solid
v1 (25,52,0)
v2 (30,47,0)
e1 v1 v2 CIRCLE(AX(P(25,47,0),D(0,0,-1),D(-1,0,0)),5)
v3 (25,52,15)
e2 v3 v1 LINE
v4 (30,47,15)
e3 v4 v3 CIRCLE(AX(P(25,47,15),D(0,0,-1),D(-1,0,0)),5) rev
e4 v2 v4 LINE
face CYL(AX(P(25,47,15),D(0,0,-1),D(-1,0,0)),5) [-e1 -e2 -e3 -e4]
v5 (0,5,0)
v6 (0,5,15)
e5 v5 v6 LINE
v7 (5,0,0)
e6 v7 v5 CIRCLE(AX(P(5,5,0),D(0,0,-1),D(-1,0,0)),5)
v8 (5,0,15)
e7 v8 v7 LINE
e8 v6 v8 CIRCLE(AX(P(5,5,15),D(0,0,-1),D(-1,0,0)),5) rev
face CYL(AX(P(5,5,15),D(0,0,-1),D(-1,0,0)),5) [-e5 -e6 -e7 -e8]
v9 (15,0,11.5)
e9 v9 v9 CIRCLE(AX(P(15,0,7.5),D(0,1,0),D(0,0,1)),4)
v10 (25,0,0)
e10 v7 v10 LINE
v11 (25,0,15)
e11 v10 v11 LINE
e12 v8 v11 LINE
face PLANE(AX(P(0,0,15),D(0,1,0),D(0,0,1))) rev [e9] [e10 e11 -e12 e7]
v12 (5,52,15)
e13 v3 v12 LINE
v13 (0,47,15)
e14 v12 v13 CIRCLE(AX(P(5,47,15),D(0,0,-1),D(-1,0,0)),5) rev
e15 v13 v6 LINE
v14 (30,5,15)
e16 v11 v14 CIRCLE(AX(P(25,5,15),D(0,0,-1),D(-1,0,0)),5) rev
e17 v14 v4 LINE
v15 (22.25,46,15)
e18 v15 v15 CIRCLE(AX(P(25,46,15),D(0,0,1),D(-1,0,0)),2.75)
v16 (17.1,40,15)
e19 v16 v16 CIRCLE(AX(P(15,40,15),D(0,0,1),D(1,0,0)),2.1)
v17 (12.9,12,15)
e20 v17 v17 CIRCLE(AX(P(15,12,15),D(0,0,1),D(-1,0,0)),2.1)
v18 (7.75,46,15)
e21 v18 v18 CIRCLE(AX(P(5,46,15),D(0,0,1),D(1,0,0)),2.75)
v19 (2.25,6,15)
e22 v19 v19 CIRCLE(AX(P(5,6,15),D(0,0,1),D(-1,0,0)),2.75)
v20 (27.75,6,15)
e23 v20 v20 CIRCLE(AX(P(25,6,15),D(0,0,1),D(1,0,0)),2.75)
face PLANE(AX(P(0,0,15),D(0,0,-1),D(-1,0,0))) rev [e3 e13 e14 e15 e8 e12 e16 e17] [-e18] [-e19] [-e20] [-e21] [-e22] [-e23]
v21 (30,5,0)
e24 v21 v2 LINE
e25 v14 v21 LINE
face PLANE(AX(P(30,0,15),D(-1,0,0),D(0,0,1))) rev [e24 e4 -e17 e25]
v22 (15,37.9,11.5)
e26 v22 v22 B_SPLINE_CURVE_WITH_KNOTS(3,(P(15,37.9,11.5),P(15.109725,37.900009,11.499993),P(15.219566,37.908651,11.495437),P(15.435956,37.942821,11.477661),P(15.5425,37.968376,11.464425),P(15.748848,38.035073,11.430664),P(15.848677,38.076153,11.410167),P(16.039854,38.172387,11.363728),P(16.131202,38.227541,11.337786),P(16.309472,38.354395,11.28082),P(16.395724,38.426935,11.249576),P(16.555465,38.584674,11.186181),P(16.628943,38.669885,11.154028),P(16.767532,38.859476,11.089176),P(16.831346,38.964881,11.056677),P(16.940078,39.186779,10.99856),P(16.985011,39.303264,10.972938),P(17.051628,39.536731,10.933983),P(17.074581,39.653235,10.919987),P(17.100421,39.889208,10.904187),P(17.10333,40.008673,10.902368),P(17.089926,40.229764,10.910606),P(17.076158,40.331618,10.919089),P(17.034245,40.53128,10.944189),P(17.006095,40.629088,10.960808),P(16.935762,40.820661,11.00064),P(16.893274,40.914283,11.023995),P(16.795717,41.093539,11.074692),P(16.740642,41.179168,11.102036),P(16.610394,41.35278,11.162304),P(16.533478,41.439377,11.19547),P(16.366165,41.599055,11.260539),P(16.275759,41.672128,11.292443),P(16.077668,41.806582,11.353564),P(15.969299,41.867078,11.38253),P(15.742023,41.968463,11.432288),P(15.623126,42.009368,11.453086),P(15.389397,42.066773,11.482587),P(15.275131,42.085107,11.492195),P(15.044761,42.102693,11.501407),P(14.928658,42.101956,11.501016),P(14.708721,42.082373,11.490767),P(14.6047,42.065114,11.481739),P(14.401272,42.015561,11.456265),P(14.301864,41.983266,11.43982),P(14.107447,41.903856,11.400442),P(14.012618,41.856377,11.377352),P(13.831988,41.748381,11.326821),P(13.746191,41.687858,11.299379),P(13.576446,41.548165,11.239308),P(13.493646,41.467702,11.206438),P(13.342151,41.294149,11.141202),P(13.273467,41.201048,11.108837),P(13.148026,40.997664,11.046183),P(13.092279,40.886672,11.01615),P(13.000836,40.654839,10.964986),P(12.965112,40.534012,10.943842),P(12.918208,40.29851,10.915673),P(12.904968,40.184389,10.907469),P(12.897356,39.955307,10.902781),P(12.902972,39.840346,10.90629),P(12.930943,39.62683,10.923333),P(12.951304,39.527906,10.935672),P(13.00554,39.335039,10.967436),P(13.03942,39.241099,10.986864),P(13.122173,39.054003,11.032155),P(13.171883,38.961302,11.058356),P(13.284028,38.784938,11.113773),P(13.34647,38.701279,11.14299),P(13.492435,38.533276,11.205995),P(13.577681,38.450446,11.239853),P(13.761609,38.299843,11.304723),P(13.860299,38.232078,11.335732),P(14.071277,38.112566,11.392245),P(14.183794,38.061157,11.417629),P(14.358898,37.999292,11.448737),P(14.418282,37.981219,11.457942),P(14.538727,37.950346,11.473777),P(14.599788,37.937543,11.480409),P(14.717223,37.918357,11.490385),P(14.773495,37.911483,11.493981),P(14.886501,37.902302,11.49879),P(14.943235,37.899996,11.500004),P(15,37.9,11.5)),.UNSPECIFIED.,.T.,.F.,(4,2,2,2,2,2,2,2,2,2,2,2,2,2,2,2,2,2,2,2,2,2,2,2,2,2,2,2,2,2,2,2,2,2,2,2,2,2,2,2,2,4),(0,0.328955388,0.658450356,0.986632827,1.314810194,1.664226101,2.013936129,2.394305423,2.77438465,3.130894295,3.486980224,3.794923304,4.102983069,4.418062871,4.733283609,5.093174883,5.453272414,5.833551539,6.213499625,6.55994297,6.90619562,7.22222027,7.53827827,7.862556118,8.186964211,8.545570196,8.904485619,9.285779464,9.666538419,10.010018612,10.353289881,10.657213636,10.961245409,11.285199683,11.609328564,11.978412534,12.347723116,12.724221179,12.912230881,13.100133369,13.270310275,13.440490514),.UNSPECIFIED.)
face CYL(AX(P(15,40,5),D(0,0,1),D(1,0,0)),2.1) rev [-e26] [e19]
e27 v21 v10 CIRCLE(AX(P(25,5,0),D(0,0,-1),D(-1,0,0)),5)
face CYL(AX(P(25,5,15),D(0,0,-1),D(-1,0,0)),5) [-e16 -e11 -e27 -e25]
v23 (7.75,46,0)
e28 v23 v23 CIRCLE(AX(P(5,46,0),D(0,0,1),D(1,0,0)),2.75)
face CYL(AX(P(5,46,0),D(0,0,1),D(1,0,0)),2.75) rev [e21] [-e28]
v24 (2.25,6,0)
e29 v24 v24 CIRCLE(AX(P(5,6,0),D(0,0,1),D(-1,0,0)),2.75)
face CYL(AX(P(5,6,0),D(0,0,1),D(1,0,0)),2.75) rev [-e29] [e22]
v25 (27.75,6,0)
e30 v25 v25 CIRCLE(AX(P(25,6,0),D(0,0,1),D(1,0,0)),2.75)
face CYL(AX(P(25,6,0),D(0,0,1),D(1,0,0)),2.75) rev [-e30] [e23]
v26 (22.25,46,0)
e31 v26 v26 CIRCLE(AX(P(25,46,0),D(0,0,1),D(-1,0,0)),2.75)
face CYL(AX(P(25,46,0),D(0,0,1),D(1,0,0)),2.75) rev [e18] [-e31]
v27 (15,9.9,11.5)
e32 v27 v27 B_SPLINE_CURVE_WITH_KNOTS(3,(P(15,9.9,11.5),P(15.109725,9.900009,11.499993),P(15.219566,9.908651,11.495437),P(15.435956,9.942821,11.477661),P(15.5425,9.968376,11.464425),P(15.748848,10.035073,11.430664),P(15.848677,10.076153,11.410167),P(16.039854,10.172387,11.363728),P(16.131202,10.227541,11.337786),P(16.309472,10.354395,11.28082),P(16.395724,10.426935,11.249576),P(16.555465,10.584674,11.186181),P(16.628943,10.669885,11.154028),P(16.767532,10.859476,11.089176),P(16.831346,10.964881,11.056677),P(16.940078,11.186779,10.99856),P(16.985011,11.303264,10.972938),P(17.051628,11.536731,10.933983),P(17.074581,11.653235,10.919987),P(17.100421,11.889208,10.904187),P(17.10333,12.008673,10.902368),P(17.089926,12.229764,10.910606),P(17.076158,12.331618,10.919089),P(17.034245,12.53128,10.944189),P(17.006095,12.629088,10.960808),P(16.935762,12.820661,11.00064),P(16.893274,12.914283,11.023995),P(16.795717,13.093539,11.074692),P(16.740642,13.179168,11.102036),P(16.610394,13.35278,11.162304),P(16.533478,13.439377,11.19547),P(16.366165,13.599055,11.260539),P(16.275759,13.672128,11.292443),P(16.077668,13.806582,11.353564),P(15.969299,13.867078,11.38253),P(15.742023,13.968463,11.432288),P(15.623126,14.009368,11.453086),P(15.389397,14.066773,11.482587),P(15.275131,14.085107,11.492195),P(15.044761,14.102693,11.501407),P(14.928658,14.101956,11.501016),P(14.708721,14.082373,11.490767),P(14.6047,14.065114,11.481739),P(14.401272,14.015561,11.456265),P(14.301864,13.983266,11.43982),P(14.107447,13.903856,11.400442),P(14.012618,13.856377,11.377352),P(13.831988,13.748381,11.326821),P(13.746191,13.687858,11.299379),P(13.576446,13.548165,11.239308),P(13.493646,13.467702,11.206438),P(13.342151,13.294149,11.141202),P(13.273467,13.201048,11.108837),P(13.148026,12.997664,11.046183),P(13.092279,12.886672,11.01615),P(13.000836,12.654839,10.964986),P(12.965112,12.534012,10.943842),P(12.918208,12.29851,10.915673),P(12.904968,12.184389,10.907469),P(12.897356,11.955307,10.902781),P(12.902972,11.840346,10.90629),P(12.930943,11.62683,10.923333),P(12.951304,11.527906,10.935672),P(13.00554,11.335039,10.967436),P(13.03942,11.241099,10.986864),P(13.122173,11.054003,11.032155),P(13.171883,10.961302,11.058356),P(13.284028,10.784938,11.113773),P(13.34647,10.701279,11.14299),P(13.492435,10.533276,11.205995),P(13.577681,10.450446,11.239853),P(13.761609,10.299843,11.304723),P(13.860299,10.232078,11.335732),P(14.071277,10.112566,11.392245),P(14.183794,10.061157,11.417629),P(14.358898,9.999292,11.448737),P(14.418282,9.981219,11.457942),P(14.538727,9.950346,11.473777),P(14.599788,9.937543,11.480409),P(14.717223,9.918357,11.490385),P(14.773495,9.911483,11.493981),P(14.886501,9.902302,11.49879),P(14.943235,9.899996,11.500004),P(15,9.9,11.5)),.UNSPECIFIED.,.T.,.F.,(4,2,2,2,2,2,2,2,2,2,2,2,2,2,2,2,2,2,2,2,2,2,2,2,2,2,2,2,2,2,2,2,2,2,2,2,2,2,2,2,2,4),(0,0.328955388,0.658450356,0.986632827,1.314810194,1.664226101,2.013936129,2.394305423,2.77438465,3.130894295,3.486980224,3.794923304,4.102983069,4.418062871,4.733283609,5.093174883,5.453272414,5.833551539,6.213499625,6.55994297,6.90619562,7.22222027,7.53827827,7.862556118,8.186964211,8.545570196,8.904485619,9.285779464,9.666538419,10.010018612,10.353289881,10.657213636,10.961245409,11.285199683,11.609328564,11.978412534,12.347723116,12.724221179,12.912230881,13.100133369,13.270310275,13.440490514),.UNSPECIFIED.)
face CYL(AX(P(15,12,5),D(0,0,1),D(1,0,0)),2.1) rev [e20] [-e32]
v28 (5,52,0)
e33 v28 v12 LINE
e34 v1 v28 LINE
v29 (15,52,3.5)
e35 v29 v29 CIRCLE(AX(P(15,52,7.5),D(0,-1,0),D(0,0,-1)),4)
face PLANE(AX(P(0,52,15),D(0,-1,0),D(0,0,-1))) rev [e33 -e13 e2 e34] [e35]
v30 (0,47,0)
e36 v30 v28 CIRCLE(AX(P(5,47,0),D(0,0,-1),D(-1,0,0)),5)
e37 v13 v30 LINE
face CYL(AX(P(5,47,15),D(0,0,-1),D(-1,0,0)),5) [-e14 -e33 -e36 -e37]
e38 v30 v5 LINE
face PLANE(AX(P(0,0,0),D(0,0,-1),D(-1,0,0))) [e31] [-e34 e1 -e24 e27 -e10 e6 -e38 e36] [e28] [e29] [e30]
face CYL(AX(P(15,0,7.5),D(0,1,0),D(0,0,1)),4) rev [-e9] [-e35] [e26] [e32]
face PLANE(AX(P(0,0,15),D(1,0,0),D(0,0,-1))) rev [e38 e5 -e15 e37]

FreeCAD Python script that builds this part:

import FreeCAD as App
import Part
import Sketcher

V = App.Vector


def edges_at(feature, points):
    """Names of the edges that pass closest to the given points."""
    edges = feature.Shape.Edges
    near = lambda p: min(range(len(edges)), key=lambda i: edges[i].distToShape(Part.Vertex(*p))[0])
    return sorted({f"Edge{near(p) + 1}" for p in points})


def add_polygon(sketch, points):
    """Adds a closed chain of lines whose ends are joined by coincident constraints."""
    first, n = sketch.GeometryCount, len(points)
    for a, b in zip(points, points[1:] + points[:1]):
        sketch.addGeometry(Part.LineSegment(App.Vector(*a, 0), App.Vector(*b, 0)), False)
    for i in range(n):
        sketch.addConstraint(Sketcher.Constraint("Coincident", first + i, 2, first + (i + 1) % n, 1))

doc = App.newDocument("Part")
body = doc.addObject("PartDesign::Body", "Body")

sketch1 = doc.addObject("Sketcher::SketchObject", "Sketch")
body.addObject(sketch1)
sketch1.AttachmentSupport = (doc.XY_Plane, [""])
sketch1.MapMode = "FlatFace"
add_polygon(sketch1, [(0, 52), (0, 0), (30, 0), (30, 52)])
sketch1.addConstraint([
    Sketcher.Constraint("Vertical", 0),
    Sketcher.Constraint("Horizontal", 1),
    Sketcher.Constraint("Vertical", 2),
    Sketcher.Constraint("Horizontal", 3),
    Sketcher.Constraint("Coincident", 0, 2, -1, 1),
    Sketcher.Constraint("DistanceX", 1, 1, 1, 2, 30.0),
    Sketcher.Constraint("DistanceY", 0, 2, 0, 1, 52.0),
])
pad1 = doc.addObject("PartDesign::Pad", "Pad")
body.addObject(pad1)
pad1.Profile = sketch1
pad1.Length = 15

sketch2 = doc.addObject("Sketcher::SketchObject", "Sketch001")
body.addObject(sketch2)
sketch2.AttachmentSupport = (doc.XZ_Plane, [""])
sketch2.MapMode = "FlatFace"
sketch2.AttachmentOffset = App.Placement(V(0, 0, -52), App.Rotation())
sketch2.addGeometry(Part.Circle(V(15, 7.5, 0), V(0, 0, 1), 4), False)
sketch2.addConstraint([
    Sketcher.Constraint("Diameter", 0, 8.0),
    Sketcher.Constraint("DistanceX", -1, 1, 0, 3, 15.0),
    Sketcher.Constraint("DistanceY", -1, 1, 0, 3, 7.5),
])
pocket1 = doc.addObject("PartDesign::Pocket", "Pocket")
body.addObject(pocket1)
pocket1.Profile = sketch2
pocket1.Type = "ThroughAll"
pocket1.Midplane = True

sketch3 = doc.addObject("Sketcher::SketchObject", "Sketch002")
body.addObject(sketch3)
sketch3.AttachmentSupport = (doc.XY_Plane, [""])
sketch3.MapMode = "FlatFace"
sketch3.AttachmentOffset = App.Placement(V(0, 0, 15), App.Rotation())
sketch3.addGeometry([
    Part.Circle(V(5, 46, 0), V(0, 0, 1), 2.8),
    Part.Circle(V(25, 46, 0), V(0, 0, 1), 2.8),
    Part.Circle(V(25, 6, 0), V(0, 0, 1), 2.8),
    Part.Circle(V(5, 6, 0), V(0, 0, 1), 2.8),
], False)
sketch3.addConstraint([
    Sketcher.Constraint("Equal", 0, 1),
    Sketcher.Constraint("Equal", 1, 2),
    Sketcher.Constraint("Equal", 2, 3),
    Sketcher.Constraint("Horizontal", 0, 3, 1, 3),
    Sketcher.Constraint("Horizontal", 2, 3, 3, 3),
    Sketcher.Constraint("Vertical", 1, 3, 2, 3),
    Sketcher.Constraint("Vertical", 0, 3, 3, 3),
    Sketcher.Constraint("Diameter", 0, 5.5),
    Sketcher.Constraint("DistanceX", -1, 1, 0, 3, 5.0),
    Sketcher.Constraint("DistanceY", -1, 1, 0, 3, 46.0),
    Sketcher.Constraint("DistanceX", -1, 1, 1, 3, 25.0),
    Sketcher.Constraint("DistanceY", -1, 1, 2, 3, 6.0),
])
pocket2 = doc.addObject("PartDesign::Pocket", "Pocket001")
body.addObject(pocket2)
pocket2.Profile = sketch3
pocket2.Type = "ThroughAll"
doc.recompute()

fillet = doc.addObject("PartDesign::Fillet", "Fillet")
body.addObject(fillet)
fillet.Base = (pocket2, edges_at(pocket2, [
    (0, 52, 7.5),
    (30, 52, 7.5),
    (30, 0, 7.5),
    (0, 0, 7.5),
]))
fillet.Radius = 5

sketch4 = doc.addObject("Sketcher::SketchObject", "Sketch003")
body.addObject(sketch4)
sketch4.AttachmentSupport = (doc.XY_Plane, [""])
sketch4.MapMode = "FlatFace"
sketch4.AttachmentOffset = App.Placement(V(0, 0, 15), App.Rotation())
sketch4.addGeometry([
    Part.Circle(V(15, 40, 0), V(0, 0, 1), 2.1),
    Part.Circle(V(15, 12, 0), V(0, 0, 1), 2.1),
], False)
sketch4.addConstraint([
    Sketcher.Constraint("Equal", 0, 1),
    Sketcher.Constraint("Vertical", 0, 3, 1, 3),
    Sketcher.Constraint("Diameter", 0, 4.2),
    Sketcher.Constraint("DistanceX", -1, 1, 0, 3, 15.0),
    Sketcher.Constraint("DistanceY", -1, 1, 0, 3, 40.0),
    Sketcher.Constraint("DistanceY", -1, 1, 1, 3, 12.0),
])
pocket3 = doc.addObject("PartDesign::Pocket", "Pocket002")
body.addObject(pocket3)
pocket3.Profile = sketch4
pocket3.Length = 10

doc.recompute()
